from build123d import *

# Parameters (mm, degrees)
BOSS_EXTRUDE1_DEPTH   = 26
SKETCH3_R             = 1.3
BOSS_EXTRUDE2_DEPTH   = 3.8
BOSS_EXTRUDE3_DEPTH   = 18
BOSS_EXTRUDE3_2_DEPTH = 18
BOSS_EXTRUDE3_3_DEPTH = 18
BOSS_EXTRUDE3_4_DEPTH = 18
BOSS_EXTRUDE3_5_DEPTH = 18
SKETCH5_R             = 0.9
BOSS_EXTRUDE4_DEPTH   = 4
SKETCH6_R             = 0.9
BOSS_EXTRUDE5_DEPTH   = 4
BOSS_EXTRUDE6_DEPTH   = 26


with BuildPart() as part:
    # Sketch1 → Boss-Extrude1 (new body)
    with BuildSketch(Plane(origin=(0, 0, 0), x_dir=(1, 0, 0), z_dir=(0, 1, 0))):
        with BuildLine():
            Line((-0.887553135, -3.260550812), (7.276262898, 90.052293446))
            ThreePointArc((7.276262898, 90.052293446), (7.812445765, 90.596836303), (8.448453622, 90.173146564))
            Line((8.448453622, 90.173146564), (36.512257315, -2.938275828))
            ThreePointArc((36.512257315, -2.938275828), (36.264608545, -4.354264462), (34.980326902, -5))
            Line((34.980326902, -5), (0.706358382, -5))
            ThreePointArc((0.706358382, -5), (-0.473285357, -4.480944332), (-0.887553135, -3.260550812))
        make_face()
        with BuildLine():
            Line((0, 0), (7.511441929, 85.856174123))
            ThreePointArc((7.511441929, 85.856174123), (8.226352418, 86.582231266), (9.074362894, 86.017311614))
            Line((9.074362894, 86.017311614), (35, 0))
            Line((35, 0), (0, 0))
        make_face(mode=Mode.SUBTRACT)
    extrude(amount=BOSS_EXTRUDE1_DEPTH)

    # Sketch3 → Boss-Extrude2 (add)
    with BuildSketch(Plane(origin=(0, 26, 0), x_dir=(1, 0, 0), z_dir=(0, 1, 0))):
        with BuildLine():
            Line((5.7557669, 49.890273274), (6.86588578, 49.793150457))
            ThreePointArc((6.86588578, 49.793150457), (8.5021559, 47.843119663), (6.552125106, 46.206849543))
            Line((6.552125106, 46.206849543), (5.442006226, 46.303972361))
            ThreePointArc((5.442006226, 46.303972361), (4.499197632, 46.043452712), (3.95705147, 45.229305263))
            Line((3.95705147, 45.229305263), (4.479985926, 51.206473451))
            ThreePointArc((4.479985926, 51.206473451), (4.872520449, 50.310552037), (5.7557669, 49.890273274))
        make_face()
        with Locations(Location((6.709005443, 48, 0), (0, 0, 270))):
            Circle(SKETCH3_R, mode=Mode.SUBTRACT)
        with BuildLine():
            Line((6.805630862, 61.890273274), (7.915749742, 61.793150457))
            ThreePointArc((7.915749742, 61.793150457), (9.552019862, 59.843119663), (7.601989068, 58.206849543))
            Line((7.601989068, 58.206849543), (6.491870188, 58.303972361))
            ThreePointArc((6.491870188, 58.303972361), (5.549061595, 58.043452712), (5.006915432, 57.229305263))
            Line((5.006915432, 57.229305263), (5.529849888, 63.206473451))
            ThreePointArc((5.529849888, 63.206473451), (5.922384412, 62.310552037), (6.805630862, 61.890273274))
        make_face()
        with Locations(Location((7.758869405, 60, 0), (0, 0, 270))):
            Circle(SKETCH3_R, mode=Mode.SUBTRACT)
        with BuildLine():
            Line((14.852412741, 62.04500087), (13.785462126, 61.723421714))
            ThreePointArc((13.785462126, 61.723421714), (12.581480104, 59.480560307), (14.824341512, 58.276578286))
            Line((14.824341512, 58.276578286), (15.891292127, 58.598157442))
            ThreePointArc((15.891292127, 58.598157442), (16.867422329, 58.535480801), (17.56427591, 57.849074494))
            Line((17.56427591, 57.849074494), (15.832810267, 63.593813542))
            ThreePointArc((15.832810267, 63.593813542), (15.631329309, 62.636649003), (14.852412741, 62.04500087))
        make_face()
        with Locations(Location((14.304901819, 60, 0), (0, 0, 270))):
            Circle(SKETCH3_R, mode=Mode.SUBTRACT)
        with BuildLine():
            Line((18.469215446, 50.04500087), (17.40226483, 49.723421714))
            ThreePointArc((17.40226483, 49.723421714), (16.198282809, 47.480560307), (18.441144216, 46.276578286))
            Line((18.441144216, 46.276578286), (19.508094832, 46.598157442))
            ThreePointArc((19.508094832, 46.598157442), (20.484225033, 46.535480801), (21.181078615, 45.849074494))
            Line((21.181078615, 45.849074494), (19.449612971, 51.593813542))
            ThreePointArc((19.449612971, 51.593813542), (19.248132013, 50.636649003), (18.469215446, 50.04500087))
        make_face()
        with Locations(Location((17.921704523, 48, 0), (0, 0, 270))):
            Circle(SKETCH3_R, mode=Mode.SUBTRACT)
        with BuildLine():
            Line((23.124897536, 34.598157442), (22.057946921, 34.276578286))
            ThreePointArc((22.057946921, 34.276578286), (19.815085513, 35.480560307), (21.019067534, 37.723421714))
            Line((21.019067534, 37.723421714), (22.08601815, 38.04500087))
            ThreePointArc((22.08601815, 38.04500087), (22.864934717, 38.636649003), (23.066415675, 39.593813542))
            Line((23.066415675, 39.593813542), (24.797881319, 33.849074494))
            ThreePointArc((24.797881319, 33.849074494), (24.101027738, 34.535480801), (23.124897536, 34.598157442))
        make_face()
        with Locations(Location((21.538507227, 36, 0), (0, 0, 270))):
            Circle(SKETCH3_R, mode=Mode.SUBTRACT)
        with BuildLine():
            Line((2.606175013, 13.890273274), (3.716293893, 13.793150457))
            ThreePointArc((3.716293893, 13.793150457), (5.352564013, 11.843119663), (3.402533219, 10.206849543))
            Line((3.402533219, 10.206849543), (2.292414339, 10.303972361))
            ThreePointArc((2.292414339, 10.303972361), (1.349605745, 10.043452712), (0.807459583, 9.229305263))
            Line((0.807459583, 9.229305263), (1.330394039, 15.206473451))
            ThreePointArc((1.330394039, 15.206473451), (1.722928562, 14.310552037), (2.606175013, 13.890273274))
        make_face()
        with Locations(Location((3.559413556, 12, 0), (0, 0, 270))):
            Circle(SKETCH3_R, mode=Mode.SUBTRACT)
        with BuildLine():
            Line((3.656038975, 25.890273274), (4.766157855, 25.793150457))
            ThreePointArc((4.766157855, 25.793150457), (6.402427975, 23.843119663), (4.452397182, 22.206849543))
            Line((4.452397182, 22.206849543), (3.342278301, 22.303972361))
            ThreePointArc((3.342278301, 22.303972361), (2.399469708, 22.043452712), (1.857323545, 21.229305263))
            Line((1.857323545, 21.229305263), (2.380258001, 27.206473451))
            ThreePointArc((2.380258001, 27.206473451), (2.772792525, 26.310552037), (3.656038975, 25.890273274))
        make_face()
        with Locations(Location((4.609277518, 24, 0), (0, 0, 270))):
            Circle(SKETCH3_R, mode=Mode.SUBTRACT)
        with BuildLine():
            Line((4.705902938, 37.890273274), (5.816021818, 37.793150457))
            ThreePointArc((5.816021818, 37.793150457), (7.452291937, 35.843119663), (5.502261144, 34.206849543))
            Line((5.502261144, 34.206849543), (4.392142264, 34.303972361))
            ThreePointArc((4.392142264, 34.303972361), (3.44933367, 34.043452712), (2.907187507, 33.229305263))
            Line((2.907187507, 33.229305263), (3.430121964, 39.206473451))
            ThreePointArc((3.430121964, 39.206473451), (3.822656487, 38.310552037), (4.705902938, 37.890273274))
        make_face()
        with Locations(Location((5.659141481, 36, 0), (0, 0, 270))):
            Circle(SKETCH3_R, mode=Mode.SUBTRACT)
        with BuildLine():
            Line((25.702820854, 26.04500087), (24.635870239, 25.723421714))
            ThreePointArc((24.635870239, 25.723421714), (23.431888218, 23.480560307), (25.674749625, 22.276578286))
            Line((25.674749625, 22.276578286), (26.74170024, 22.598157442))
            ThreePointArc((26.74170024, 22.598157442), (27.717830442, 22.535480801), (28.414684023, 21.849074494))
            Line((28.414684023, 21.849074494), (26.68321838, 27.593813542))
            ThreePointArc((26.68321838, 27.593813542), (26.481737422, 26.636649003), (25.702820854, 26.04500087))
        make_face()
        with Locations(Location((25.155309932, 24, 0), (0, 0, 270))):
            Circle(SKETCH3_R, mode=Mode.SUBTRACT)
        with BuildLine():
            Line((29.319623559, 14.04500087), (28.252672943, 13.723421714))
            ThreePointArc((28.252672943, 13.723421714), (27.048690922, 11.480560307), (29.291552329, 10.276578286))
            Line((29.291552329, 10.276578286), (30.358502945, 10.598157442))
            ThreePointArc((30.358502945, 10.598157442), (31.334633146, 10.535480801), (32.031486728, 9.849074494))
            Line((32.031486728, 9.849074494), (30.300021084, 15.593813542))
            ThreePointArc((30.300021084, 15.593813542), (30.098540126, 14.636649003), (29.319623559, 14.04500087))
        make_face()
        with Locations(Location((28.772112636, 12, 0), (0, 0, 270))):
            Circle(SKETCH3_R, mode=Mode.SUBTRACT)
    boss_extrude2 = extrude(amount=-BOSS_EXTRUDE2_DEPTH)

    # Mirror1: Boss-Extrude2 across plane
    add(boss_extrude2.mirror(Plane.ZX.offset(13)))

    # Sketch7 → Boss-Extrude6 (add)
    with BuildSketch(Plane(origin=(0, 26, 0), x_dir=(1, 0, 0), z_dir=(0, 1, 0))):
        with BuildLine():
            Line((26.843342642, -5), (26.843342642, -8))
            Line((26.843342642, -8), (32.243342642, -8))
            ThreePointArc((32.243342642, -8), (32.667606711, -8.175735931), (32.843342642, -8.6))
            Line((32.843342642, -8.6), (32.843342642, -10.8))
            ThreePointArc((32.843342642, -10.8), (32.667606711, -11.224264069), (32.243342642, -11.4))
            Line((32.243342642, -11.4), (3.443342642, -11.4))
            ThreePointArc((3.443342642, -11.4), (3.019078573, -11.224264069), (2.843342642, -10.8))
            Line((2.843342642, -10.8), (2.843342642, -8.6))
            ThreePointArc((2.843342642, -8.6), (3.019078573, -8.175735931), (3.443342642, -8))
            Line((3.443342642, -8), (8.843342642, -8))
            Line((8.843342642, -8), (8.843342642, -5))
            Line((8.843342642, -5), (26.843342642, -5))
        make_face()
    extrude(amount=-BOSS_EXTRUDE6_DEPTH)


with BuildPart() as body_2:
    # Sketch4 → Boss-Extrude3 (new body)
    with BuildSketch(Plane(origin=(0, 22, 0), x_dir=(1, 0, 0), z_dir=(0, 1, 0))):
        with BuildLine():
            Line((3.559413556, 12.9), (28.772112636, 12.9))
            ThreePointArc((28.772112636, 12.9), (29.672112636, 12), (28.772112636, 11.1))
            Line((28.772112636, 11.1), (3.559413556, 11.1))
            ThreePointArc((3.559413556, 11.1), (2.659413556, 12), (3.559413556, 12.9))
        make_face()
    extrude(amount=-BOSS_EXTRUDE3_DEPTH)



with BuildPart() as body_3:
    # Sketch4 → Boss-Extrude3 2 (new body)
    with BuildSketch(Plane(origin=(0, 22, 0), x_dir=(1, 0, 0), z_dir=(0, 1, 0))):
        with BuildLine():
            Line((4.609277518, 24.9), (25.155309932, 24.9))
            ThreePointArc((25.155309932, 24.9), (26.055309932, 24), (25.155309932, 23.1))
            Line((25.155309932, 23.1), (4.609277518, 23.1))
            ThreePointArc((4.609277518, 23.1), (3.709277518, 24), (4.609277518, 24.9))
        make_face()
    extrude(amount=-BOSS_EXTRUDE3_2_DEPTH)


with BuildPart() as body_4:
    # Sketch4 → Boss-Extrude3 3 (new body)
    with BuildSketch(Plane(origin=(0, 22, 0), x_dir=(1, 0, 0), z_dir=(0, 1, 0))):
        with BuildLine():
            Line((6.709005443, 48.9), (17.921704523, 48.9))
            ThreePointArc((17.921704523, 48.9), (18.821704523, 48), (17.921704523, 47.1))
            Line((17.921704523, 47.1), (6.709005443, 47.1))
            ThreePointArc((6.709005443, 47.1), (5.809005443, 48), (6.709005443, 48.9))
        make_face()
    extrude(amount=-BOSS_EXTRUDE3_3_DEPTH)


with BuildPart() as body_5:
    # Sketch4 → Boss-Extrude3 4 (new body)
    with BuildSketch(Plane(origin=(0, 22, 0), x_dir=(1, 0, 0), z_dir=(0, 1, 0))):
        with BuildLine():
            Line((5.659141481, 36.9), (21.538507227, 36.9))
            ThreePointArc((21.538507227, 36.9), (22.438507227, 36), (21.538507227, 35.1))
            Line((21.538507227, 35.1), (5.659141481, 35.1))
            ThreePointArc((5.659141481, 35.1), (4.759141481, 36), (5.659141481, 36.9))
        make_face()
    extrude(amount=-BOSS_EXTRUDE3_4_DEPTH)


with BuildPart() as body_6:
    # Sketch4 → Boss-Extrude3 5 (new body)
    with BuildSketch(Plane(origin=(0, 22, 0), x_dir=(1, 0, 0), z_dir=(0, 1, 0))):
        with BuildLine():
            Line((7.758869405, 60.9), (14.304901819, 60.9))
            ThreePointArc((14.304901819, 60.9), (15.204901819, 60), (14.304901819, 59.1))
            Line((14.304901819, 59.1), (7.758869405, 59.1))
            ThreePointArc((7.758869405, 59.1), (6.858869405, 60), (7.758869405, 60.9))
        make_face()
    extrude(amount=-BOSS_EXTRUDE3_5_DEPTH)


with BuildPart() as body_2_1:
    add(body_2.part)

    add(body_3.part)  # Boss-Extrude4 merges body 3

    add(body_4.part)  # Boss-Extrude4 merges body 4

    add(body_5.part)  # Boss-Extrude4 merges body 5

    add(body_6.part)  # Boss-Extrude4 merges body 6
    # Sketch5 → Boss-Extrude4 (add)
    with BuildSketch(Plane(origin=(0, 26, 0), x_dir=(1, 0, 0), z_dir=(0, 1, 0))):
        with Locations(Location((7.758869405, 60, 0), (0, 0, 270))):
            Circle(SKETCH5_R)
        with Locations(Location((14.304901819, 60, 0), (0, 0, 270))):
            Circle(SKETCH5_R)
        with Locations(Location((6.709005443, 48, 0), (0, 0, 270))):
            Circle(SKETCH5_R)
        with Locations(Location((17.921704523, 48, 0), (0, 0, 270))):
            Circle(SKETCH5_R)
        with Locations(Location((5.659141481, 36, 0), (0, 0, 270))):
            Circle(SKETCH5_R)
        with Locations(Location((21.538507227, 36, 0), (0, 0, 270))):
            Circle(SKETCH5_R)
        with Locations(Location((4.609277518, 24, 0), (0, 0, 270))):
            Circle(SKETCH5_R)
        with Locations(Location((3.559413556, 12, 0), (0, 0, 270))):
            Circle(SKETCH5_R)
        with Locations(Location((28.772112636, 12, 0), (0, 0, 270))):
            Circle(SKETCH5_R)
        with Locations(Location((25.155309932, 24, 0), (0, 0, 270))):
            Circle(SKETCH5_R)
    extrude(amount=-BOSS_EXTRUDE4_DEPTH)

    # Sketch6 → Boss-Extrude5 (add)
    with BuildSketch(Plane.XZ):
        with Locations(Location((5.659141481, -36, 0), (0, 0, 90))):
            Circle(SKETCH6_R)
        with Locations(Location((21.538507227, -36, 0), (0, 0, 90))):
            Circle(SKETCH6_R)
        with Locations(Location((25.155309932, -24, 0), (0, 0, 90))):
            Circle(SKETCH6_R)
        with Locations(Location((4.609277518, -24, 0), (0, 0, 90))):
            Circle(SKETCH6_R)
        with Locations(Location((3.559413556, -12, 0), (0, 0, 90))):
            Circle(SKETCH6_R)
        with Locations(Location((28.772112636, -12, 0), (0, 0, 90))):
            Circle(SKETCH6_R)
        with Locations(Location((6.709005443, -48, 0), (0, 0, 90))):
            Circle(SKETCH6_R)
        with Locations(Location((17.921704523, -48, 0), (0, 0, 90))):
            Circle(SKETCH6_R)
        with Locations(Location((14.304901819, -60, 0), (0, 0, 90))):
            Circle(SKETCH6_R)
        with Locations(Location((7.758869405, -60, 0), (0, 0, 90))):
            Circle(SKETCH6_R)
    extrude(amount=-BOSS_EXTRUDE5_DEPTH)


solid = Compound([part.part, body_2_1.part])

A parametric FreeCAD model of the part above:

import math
import FreeCAD as App
import Part
import Sketcher
from FreeCAD import Vector
Q = App.Units.Quantity

doc = App.newDocument("Part")
body = doc.addObject("PartDesign::Body", "Body")

# Sketch on XZ plane
sketch1 = body.newObject("Sketcher::SketchObject", "Sketch")
sketch1.AttachmentSupport = (doc.getObject("XZ_Plane"), [""])
sketch1.MapMode = "FlatFace"
sketch1.addGeometry([
    Part.LineSegment(Vector(7.3, -90.1, 0), Vector(-0.9, 3.3, 0)),  # 0
    Part.ArcOfCircle(Part.Circle(Vector(0.7, 3.4, 0), Vector(0, 0, 1), 1.6), math.radians(90), math.radians(185)),  # 1
    Part.LineSegment(Vector(0.7, 5, 0), Vector(35, 5, 0)),  # 2
    Part.ArcOfCircle(Part.Circle(Vector(35, 3.4, 0), Vector(0, 0, 1), 1.6), math.radians(-17), math.radians(90)),  # 3
    Part.LineSegment(Vector(36.5, 2.9, 0), Vector(8.4, -90.2, 0)),  # 4
    Part.ArcOfCircle(Part.Circle(Vector(7.9, -90, 0), Vector(0, 0, 1), 0.6), math.radians(-175), math.radians(-17)),  # 5
    Part.LineSegment(Vector(0, 0, 0), Vector(7.5, -85.9, 0)),  # 6
    Part.ArcOfCircle(Part.Circle(Vector(8.3, -85.8, 0), Vector(0, 0, 1), 0.8), math.radians(-175), math.radians(-17)),  # 7
    Part.LineSegment(Vector(9.1, -86, 0), Vector(35, 0, 0)),  # 8
    Part.LineSegment(Vector(35, 0, 0), Vector(0, 0, 0)),  # 9
], False)
sketch1.addConstraint([
    Sketcher.Constraint("Tangent", 0, 2, 1, 2),
    Sketcher.Constraint("Tangent", 1, 1, 2, 1),
    Sketcher.Constraint("Tangent", 2, 2, 3, 2),
    Sketcher.Constraint("Tangent", 3, 1, 4, 1),
    Sketcher.Constraint("Tangent", 4, 2, 5, 2),
    Sketcher.Constraint("Tangent", 5, 1, 0, 1),
    Sketcher.Constraint("Tangent", 6, 2, 7, 1),
    Sketcher.Constraint("Tangent", 7, 2, 8, 1),
    Sketcher.Constraint("Coincident", 8, 2, 9, 1),
    Sketcher.Constraint("Coincident", 9, 2, 6, 1),
    Sketcher.Constraint("Horizontal", 2),
    Sketcher.Constraint("Horizontal", 9),
    Sketcher.Constraint("Coincident", 9, 2, -1, 1),
    Sketcher.Constraint("Equal", 1, 3),
    Sketcher.Constraint("Parallel", 0, 6),
    Sketcher.Constraint("Parallel", 4, 8),
    Sketcher.Constraint("Radius", 1, 1.6),
    Sketcher.Constraint("Radius", 5, 0.6),
    Sketcher.Constraint("Radius", 7, 0.8),
    Sketcher.Constraint("DistanceX", 9, 2, 9, 1, 35.0),
    Sketcher.Constraint("Angle", 0, Q("95 deg")),
    Sketcher.Constraint("DistanceY", 5, 3, -1, 1, 90.0),
    Sketcher.Constraint("DistanceY", -1, 1, 1, 1, 5.0),
    Sketcher.Constraint("DistanceY", 7, 3, 0, 2, 89.047),
    Sketcher.Constraint("DistanceX", 5, 1, 7, 2, 1.7981),
])
pad1 = body.newObject("PartDesign::Pad", "Pad")
pad1.Profile = sketch1
pad1.Length = 26
pad1.Reversed = True

# Sketch on XZ plane
sketch2 = body.newObject("Sketcher::SketchObject", "Sketch001")
sketch2.AttachmentSupport = (doc.getObject("XZ_Plane"), [""])
sketch2.MapMode = "FlatFace"
sketch2.AttachmentOffset = App.Placement(Vector(0, 0, -26), App.Rotation())
sketch2.addGeometry([
    Part.LineSegment(Vector(6.9, -49.8, 0), Vector(5.8, -49.9, 0)),  # 0
    Part.ArcOfCircle(Part.Circle(Vector(5.9, -51.3, 0), Vector(0, 0, 1), 1.4), math.radians(95), math.radians(177)),  # 1
    Part.LineSegment(Vector(4.5, -51.2, 0), Vector(4, -45.2, 0)),  # 2
    Part.ArcOfCircle(Part.Circle(Vector(5.3, -44.9, 0), Vector(0, 0, 1), 1.4), math.radians(-167), math.radians(-85)),  # 3
    Part.LineSegment(Vector(5.4, -46.3, 0), Vector(6.6, -46.2, 0)),  # 4
    Part.ArcOfCircle(Part.Circle(Vector(6.7, -48, 0), Vector(0, 0, 1), 1.8), math.radians(-85), math.radians(95)),  # 5
    Part.Circle(Vector(6.7, -48, 0), Vector(0, 0, 1), 1.3),  # 6
    Part.LineSegment(Vector(7.9, -61.8, 0), Vector(6.8, -61.9, 0)),  # 7
    Part.ArcOfCircle(Part.Circle(Vector(6.9, -63.3, 0), Vector(0, 0, 1), 1.4), math.radians(95), math.radians(177)),  # 8
    Part.LineSegment(Vector(5.5, -63.2, 0), Vector(5, -57.2, 0)),  # 9
    Part.ArcOfCircle(Part.Circle(Vector(6.4, -56.9, 0), Vector(0, 0, 1), 1.4), math.radians(-167), math.radians(-85)),  # 10
    Part.LineSegment(Vector(6.5, -58.3, 0), Vector(7.6, -58.2, 0)),  # 11
    Part.ArcOfCircle(Part.Circle(Vector(7.8, -60, 0), Vector(0, 0, 1), 1.8), math.radians(-85), math.radians(95)),  # 12
    Part.Circle(Vector(7.8, -60, 0), Vector(0, 0, 1), 1.3),  # 13
    Part.LineSegment(Vector(14.9, -62, 0), Vector(13.8, -61.7, 0)),  # 14
    Part.ArcOfCircle(Part.Circle(Vector(14.3, -60, 0), Vector(0, 0, 1), 1.8), math.radians(73), math.radians(253)),  # 15
    Part.LineSegment(Vector(14.8, -58.3, 0), Vector(15.9, -58.6, 0)),  # 16
    Part.ArcOfCircle(Part.Circle(Vector(16.3, -57.3, 0), Vector(0, 0, 1), 1.4), math.radians(-107), math.radians(-25)),  # 17
    Part.LineSegment(Vector(17.6, -57.8, 0), Vector(15.8, -63.6, 0)),  # 18
    Part.ArcOfCircle(Part.Circle(Vector(14.4, -63.4, 0), Vector(0, 0, 1), 1.4), math.radians(-9), math.radians(73)),  # 19
    Part.Circle(Vector(14.3, -60, 0), Vector(0, 0, 1), 1.3),  # 20
    Part.LineSegment(Vector(18.5, -50, 0), Vector(17.4, -49.7, 0)),  # 21
    Part.ArcOfCircle(Part.Circle(Vector(17.9, -48, 0), Vector(0, 0, 1), 1.8), math.radians(73), math.radians(253)),  # 22
    Part.LineSegment(Vector(18.4, -46.3, 0), Vector(19.5, -46.6, 0)),  # 23
    Part.ArcOfCircle(Part.Circle(Vector(19.9, -45.3, 0), Vector(0, 0, 1), 1.4), math.radians(-107), math.radians(-25)),  # 24
    Part.LineSegment(Vector(21.2, -45.8, 0), Vector(19.4, -51.6, 0)),  # 25
    Part.ArcOfCircle(Part.Circle(Vector(18.1, -51.4, 0), Vector(0, 0, 1), 1.4), math.radians(-9), math.radians(73)),  # 26
    Part.Circle(Vector(17.9, -48, 0), Vector(0, 0, 1), 1.3),  # 27
    Part.LineSegment(Vector(22.1, -34.3, 0), Vector(23.1, -34.6, 0)),  # 28
    Part.ArcOfCircle(Part.Circle(Vector(23.5, -33.3, 0), Vector(0, 0, 1), 1.4), math.radians(-107), math.radians(-25)),  # 29
    Part.LineSegment(Vector(24.8, -33.8, 0), Vector(23.1, -39.6, 0)),  # 30
    Part.ArcOfCircle(Part.Circle(Vector(21.7, -39.4, 0), Vector(0, 0, 1), 1.4), math.radians(-9), math.radians(73)),  # 31
    Part.LineSegment(Vector(22.1, -38, 0), Vector(21, -37.7, 0)),  # 32
    Part.ArcOfCircle(Part.Circle(Vector(21.5, -36, 0), Vector(0, 0, 1), 1.8), math.radians(73), math.radians(253)),  # 33
    Part.Circle(Vector(21.5, -36, 0), Vector(0, 0, 1), 1.3),  # 34
    Part.LineSegment(Vector(3.7, -13.8, 0), Vector(2.6, -13.9, 0)),  # 35
    Part.ArcOfCircle(Part.Circle(Vector(2.7, -15.3, 0), Vector(0, 0, 1), 1.4), math.radians(95), math.radians(177)),  # 36
    Part.LineSegment(Vector(1.3, -15.2, 0), Vector(0.8, -9.2, 0)),  # 37
    Part.ArcOfCircle(Part.Circle(Vector(2.2, -8.9, 0), Vector(0, 0, 1), 1.4), math.radians(-167), math.radians(-85)),  # 38
    Part.LineSegment(Vector(2.3, -10.3, 0), Vector(3.4, -10.2, 0)),  # 39
    Part.ArcOfCircle(Part.Circle(Vector(3.6, -12, 0), Vector(0, 0, 1), 1.8), math.radians(-85), math.radians(95)),  # 40
    Part.Circle(Vector(3.6, -12, 0), Vector(0, 0, 1), 1.3),  # 41
    Part.LineSegment(Vector(4.8, -25.8, 0), Vector(3.7, -25.9, 0)),  # 42
    Part.ArcOfCircle(Part.Circle(Vector(3.8, -27.3, 0), Vector(0, 0, 1), 1.4), math.radians(95), math.radians(177)),  # 43
    Part.LineSegment(Vector(2.4, -27.2, 0), Vector(1.9, -21.2, 0)),  # 44
    Part.ArcOfCircle(Part.Circle(Vector(3.2, -20.9, 0), Vector(0, 0, 1), 1.4), math.radians(-167), math.radians(-85)),  # 45
    Part.LineSegment(Vector(3.3, -22.3, 0), Vector(4.5, -22.2, 0)),  # 46
    Part.ArcOfCircle(Part.Circle(Vector(4.6, -24, 0), Vector(0, 0, 1), 1.8), math.radians(-85), math.radians(95)),  # 47
    Part.Circle(Vector(4.6, -24, 0), Vector(0, 0, 1), 1.3),  # 48
    Part.LineSegment(Vector(5.8, -37.8, 0), Vector(4.7, -37.9, 0)),  # 49
    Part.ArcOfCircle(Part.Circle(Vector(4.8, -39.3, 0), Vector(0, 0, 1), 1.4), math.radians(95), math.radians(177)),  # 50
    Part.LineSegment(Vector(3.4, -39.2, 0), Vector(2.9, -33.2, 0)),  # 51
    Part.ArcOfCircle(Part.Circle(Vector(4.3, -32.9, 0), Vector(0, 0, 1), 1.4), math.radians(-167), math.radians(-85)),  # 52
    Part.LineSegment(Vector(4.4, -34.3, 0), Vector(5.5, -34.2, 0)),  # 53
    Part.ArcOfCircle(Part.Circle(Vector(5.7, -36, 0), Vector(0, 0, 1), 1.8), math.radians(-85), math.radians(95)),  # 54
    Part.Circle(Vector(5.7, -36, 0), Vector(0, 0, 1), 1.3),  # 55
    Part.LineSegment(Vector(25.7, -26, 0), Vector(24.6, -25.7, 0)),  # 56
    Part.ArcOfCircle(Part.Circle(Vector(25.2, -24, 0), Vector(0, 0, 1), 1.8), math.radians(73), math.radians(253)),  # 57
    Part.LineSegment(Vector(25.7, -22.3, 0), Vector(26.7, -22.6, 0)),  # 58
    Part.ArcOfCircle(Part.Circle(Vector(27.1, -21.3, 0), Vector(0, 0, 1), 1.4), math.radians(-107), math.radians(-25)),  # 59
    Part.LineSegment(Vector(28.4, -21.8, 0), Vector(26.7, -27.6, 0)),  # 60
    Part.ArcOfCircle(Part.Circle(Vector(25.3, -27.4, 0), Vector(0, 0, 1), 1.4), math.radians(-9), math.radians(73)),  # 61
    Part.Circle(Vector(25.2, -24, 0), Vector(0, 0, 1), 1.3),  # 62
    Part.LineSegment(Vector(29.3, -14, 0), Vector(28.3, -13.7, 0)),  # 63
    Part.ArcOfCircle(Part.Circle(Vector(28.8, -12, 0), Vector(0, 0, 1), 1.8), math.radians(73), math.radians(253)),  # 64
    Part.LineSegment(Vector(29.3, -10.3, 0), Vector(30.4, -10.6, 0)),  # 65
    Part.ArcOfCircle(Part.Circle(Vector(30.8, -9.3, 0), Vector(0, 0, 1), 1.4), math.radians(-107), math.radians(-25)),  # 66
    Part.LineSegment(Vector(32, -9.8, 0), Vector(30.3, -15.6, 0)),  # 67
    Part.ArcOfCircle(Part.Circle(Vector(28.9, -15.4, 0), Vector(0, 0, 1), 1.4), math.radians(-9), math.radians(73)),  # 68
    Part.Circle(Vector(28.8, -12, 0), Vector(0, 0, 1), 1.3),  # 69
], False)
sketch2.addConstraint([
    Sketcher.Constraint("Tangent", 0, 2, 1, 1),
    Sketcher.Constraint("Coincident", 1, 2, 2, 1),
    Sketcher.Constraint("Coincident", 2, 2, 3, 1),
    Sketcher.Constraint("Tangent", 3, 2, 4, 1),
    Sketcher.Constraint("Tangent", 4, 2, 5, 2),
    Sketcher.Constraint("Tangent", 5, 1, 0, 1),
    Sketcher.Constraint("Tangent", 7, 2, 8, 1),
    Sketcher.Constraint("Coincident", 8, 2, 9, 1),
    Sketcher.Constraint("Coincident", 9, 2, 10, 1),
    Sketcher.Constraint("Tangent", 10, 2, 11, 1),
    Sketcher.Constraint("Tangent", 11, 2, 12, 2),
    Sketcher.Constraint("Tangent", 12, 1, 7, 1),
    Sketcher.Constraint("Tangent", 14, 2, 15, 2),
    Sketcher.Constraint("Tangent", 15, 1, 16, 1),
    Sketcher.Constraint("Tangent", 16, 2, 17, 1),
    Sketcher.Constraint("Coincident", 17, 2, 18, 1),
    Sketcher.Constraint("Coincident", 18, 2, 19, 1),
    Sketcher.Constraint("Tangent", 19, 2, 14, 1),
    Sketcher.Constraint("Tangent", 21, 2, 22, 2),
    Sketcher.Constraint("Tangent", 22, 1, 23, 1),
    Sketcher.Constraint("Tangent", 23, 2, 24, 1),
    Sketcher.Constraint("Coincident", 24, 2, 25, 1),
    Sketcher.Constraint("Coincident", 25, 2, 26, 1),
    Sketcher.Constraint("Tangent", 26, 2, 21, 1),
    Sketcher.Constraint("Tangent", 28, 2, 29, 1),
    Sketcher.Constraint("Coincident", 29, 2, 30, 1),
    Sketcher.Constraint("Coincident", 30, 2, 31, 1),
    Sketcher.Constraint("Tangent", 31, 2, 32, 1),
    Sketcher.Constraint("Tangent", 32, 2, 33, 2),
    Sketcher.Constraint("Tangent", 33, 1, 28, 1),
    Sketcher.Constraint("Tangent", 35, 2, 36, 1),
    Sketcher.Constraint("Coincident", 36, 2, 37, 1),
    Sketcher.Constraint("Coincident", 37, 2, 38, 1),
    Sketcher.Constraint("Tangent", 38, 2, 39, 1),
    Sketcher.Constraint("Tangent", 39, 2, 40, 2),
    Sketcher.Constraint("Tangent", 40, 1, 35, 1),
    Sketcher.Constraint("Tangent", 42, 2, 43, 1),
    Sketcher.Constraint("Coincident", 43, 2, 44, 1),
    Sketcher.Constraint("Coincident", 44, 2, 45, 1),
    Sketcher.Constraint("Tangent", 45, 2, 46, 1),
    Sketcher.Constraint("Tangent", 46, 2, 47, 2),
    Sketcher.Constraint("Tangent", 47, 1, 42, 1),
    Sketcher.Constraint("Tangent", 49, 2, 50, 1),
    Sketcher.Constraint("Coincident", 50, 2, 51, 1),
    Sketcher.Constraint("Coincident", 51, 2, 52, 1),
    Sketcher.Constraint("Tangent", 52, 2, 53, 1),
    Sketcher.Constraint("Tangent", 53, 2, 54, 2),
    Sketcher.Constraint("Tangent", 54, 1, 49, 1),
    Sketcher.Constraint("Tangent", 56, 2, 57, 2),
    Sketcher.Constraint("Tangent", 57, 1, 58, 1),
    Sketcher.Constraint("Tangent", 58, 2, 59, 1),
    Sketcher.Constraint("Coincident", 59, 2, 60, 1),
    Sketcher.Constraint("Coincident", 60, 2, 61, 1),
    Sketcher.Constraint("Tangent", 61, 2, 56, 1),
    Sketcher.Constraint("Tangent", 63, 2, 64, 2),
    Sketcher.Constraint("Tangent", 64, 1, 65, 1),
    Sketcher.Constraint("Tangent", 65, 2, 66, 1),
    Sketcher.Constraint("Coincident", 66, 2, 67, 1),
    Sketcher.Constraint("Coincident", 67, 2, 68, 1),
    Sketcher.Constraint("Tangent", 68, 2, 63, 1),
    Sketcher.Constraint("Coincident", 6, 3, 5, 3),
    Sketcher.Constraint("Coincident", 13, 3, 12, 3),
    Sketcher.Constraint("Coincident", 20, 3, 15, 3),
    Sketcher.Constraint("Coincident", 27, 3, 22, 3),
    Sketcher.Constraint("Coincident", 34, 3, 33, 3),
    Sketcher.Constraint("Coincident", 41, 3, 40, 3),
    Sketcher.Constraint("Coincident", 48, 3, 47, 3),
    Sketcher.Constraint("Coincident", 55, 3, 54, 3),
    Sketcher.Constraint("Coincident", 62, 3, 57, 3),
    Sketcher.Constraint("Coincident", 69, 3, 64, 3),
    Sketcher.Constraint("Equal", 1, 3),
    Sketcher.Constraint("Equal", 3, 8),
    Sketcher.Constraint("Equal", 8, 10),
    Sketcher.Constraint("Equal", 5, 12),
    Sketcher.Constraint("Equal", 6, 13),
    Sketcher.Constraint("Equal", 12, 15),
    Sketcher.Constraint("Equal", 10, 17),
    Sketcher.Constraint("Equal", 17, 19),
    Sketcher.Constraint("Equal", 13, 20),
    Sketcher.Constraint("Equal", 15, 22),
    Sketcher.Constraint("Equal", 19, 24),
    Sketcher.Constraint("Equal", 24, 26),
    Sketcher.Constraint("Equal", 20, 27),
    Sketcher.Constraint("Equal", 26, 29),
    Sketcher.Constraint("Equal", 29, 31),
    Sketcher.Constraint("Equal", 22, 33),
    Sketcher.Constraint("Equal", 27, 34),
    Sketcher.Constraint("Equal", 31, 36),
    Sketcher.Constraint("Equal", 36, 38),
    Sketcher.Constraint("Equal", 33, 40),
    Sketcher.Constraint("Equal", 34, 41),
    Sketcher.Constraint("Equal", 38, 43),
    Sketcher.Constraint("Equal", 43, 45),
    Sketcher.Constraint("Equal", 40, 47),
    Sketcher.Constraint("Equal", 41, 48),
    Sketcher.Constraint("Equal", 45, 50),
    Sketcher.Constraint("Equal", 50, 52),
    Sketcher.Constraint("Equal", 47, 54),
    Sketcher.Constraint("Equal", 48, 55),
    Sketcher.Constraint("Equal", 54, 57),
    Sketcher.Constraint("Equal", 52, 59),
    Sketcher.Constraint("Equal", 59, 61),
    Sketcher.Constraint("Equal", 55, 62),
    Sketcher.Constraint("Equal", 57, 64),
    Sketcher.Constraint("Equal", 61, 66),
    Sketcher.Constraint("Equal", 66, 68),
    Sketcher.Constraint("Equal", 62, 69),
    Sketcher.Constraint("Perpendicular", 0, 2),
    Sketcher.Constraint("Perpendicular", 2, 4),
    Sketcher.Constraint("Parallel", 4, 7),
    Sketcher.Constraint("Perpendicular", 7, 9),
    Sketcher.Constraint("Perpendicular", 9, 11),
    Sketcher.Constraint("Parallel", 14, 16),
    Sketcher.Constraint("Perpendicular", 16, 18),
    Sketcher.Constraint("Perpendicular", 18, 21),
    Sketcher.Constraint("Parallel", 21, 23),
    Sketcher.Constraint("Perpendicular", 23, 25),
    Sketcher.Constraint("Perpendicular", 25, 28),
    Sketcher.Constraint("Perpendicular", 28, 30),
    Sketcher.Constraint("Perpendicular", 30, 32),
    Sketcher.Constraint("Parallel", 11, 35),
    Sketcher.Constraint("Perpendicular", 35, 37),
    Sketcher.Constraint("Perpendicular", 37, 39),
    Sketcher.Constraint("Parallel", 39, 42),
    Sketcher.Constraint("Perpendicular", 42, 44),
    Sketcher.Constraint("Perpendicular", 44, 46),
    Sketcher.Constraint("Parallel", 46, 49),
    Sketcher.Constraint("Perpendicular", 49, 51),
    Sketcher.Constraint("Perpendicular", 51, 53),
    Sketcher.Constraint("Parallel", 32, 56),
    Sketcher.Constraint("Parallel", 56, 58),
    Sketcher.Constraint("Perpendicular", 58, 60),
    Sketcher.Constraint("Perpendicular", 60, 63),
    Sketcher.Constraint("Parallel", 63, 65),
    Sketcher.Constraint("Perpendicular", 65, 67),
    Sketcher.Constraint("Horizontal", 13, 3, 15, 3),
    Sketcher.Constraint("Horizontal", 6, 3, 22, 3),
    Sketcher.Constraint("Horizontal", 34, 3, 54, 3),
    Sketcher.Constraint("Horizontal", 48, 3, 57, 3),
    Sketcher.Constraint("Horizontal", 41, 3, 64, 3),
    Sketcher.Constraint("Equal", 0, 4),
    Sketcher.Constraint("Equal", 4, 7),
    Sketcher.Constraint("Equal", 2, 9),
    Sketcher.Constraint("Equal", 7, 11),
    Sketcher.Constraint("Equal", 11, 14),
    Sketcher.Constraint("Equal", 14, 16),
    Sketcher.Constraint("Equal", 9, 18),
    Sketcher.Constraint("Equal", 16, 21),
    Sketcher.Constraint("Equal", 21, 23),
    Sketcher.Constraint("Equal", 18, 25),
    Sketcher.Constraint("Equal", 23, 28),
    Sketcher.Constraint("Equal", 25, 30),
    Sketcher.Constraint("Equal", 28, 32),
    Sketcher.Constraint("Equal", 32, 35),
    Sketcher.Constraint("Equal", 30, 37),
    Sketcher.Constraint("Equal", 35, 39),
    Sketcher.Constraint("Equal", 39, 42),
    Sketcher.Constraint("Equal", 37, 44),
    Sketcher.Constraint("Equal", 42, 46),
    Sketcher.Constraint("Equal", 46, 49),
    Sketcher.Constraint("Equal", 44, 51),
    Sketcher.Constraint("Equal", 49, 53),
    Sketcher.Constraint("Equal", 53, 56),
    Sketcher.Constraint("Equal", 56, 58),
    Sketcher.Constraint("Equal", 51, 60),
    Sketcher.Constraint("Equal", 58, 63),
    Sketcher.Constraint("Equal", 63, 65),
    Sketcher.Constraint("Equal", 60, 67),
    Sketcher.Constraint("Diameter", 6, 2.6),
    Sketcher.Constraint("Radius", 1, 1.4),
    Sketcher.Constraint("Radius", 5, 1.8),
    Sketcher.Constraint("Angle", 0, Q("-175 deg")),
    Sketcher.Constraint("Distance", 2, 6.0),
    Sketcher.Constraint("DistanceY", 5, 3, -1, 1, 48.0),
    Sketcher.Constraint("DistanceY", 12, 3, -1, 1, 60.0),
    Sketcher.Constraint("DistanceY", 33, 3, -1, 1, 36.0),
    Sketcher.Constraint("DistanceY", 40, 3, -1, 1, 12.0),
    Sketcher.Constraint("DistanceY", 47, 3, -1, 1, 24.0),
    Sketcher.Constraint("DistanceY", 19, 2, -1, 1, 62.045001),
    Sketcher.Constraint("DistanceY", 3, 3, -1, 1, 44.9093),
    Sketcher.Constraint("DistanceX", -1, 1, 15, 3, 14.304902),
    Sketcher.Constraint("DistanceX", -1, 1, 58, 2, 26.7417),
    Sketcher.Constraint("DistanceX", -1, 1, 3, 3, 5.319988),
    Sketcher.Constraint("DistanceX", -1, 1, 8, 3, 6.927649),
    Sketcher.Constraint("DistanceX", -1, 1, 31, 3, 21.682009),
    Sketcher.Constraint("DistanceX", -1, 1, 45, 3, 3.22026),
    Sketcher.Constraint("DistanceX", -1, 1, 50, 3, 4.827921),
    Sketcher.Constraint("DistanceX", -1, 1, 66, 3, 30.762512),
    Sketcher.Constraint("DistanceX", -1, 1, 24, 2, 21.181079),
    Sketcher.Constraint("DistanceX", -1, 1, 37, 2, 0.80746),
])
pad2 = body.newObject("PartDesign::Pad", "Pad001")
pad2.Profile = sketch2
pad2.Length = 3.8
doc.recompute()

datumplane = body.newObject("PartDesign::Plane", "DatumPlane")
datumplane.AttachmentSupport = (doc.getObject("XZ_Plane"), [""])
datumplane.MapMode = "FlatFace"
datumplane.AttachmentOffset = App.Placement(Vector(0, 0, -13), App.Rotation())
mirrored = body.newObject("PartDesign::Mirrored", "Mirrored")
mirrored.Originals = [pad2]
mirrored.MirrorPlane = (datumplane, [""])
body.Tip = mirrored

# Sketch on XZ plane
sketch3 = body.newObject("Sketcher::SketchObject", "Sketch002")
sketch3.AttachmentSupport = (doc.getObject("XZ_Plane"), [""])
sketch3.MapMode = "FlatFace"
sketch3.AttachmentOffset = App.Placement(Vector(0, 0, -26), App.Rotation())
sketch3.addGeometry([
    Part.LineSegment(Vector(26.8, 8, 0), Vector(26.8, 5, 0)),  # 0
    Part.LineSegment(Vector(26.8, 5, 0), Vector(8.8, 5, 0)),  # 1
    Part.LineSegment(Vector(8.8, 5, 0), Vector(8.8, 8, 0)),  # 2
    Part.LineSegment(Vector(8.8, 8, 0), Vector(3.4, 8, 0)),  # 3
    Part.ArcOfCircle(Part.Circle(Vector(3.4, 8.6, 0), Vector(0, 0, 1), 0.6), math.radians(180), math.radians(270)),  # 4
    Part.LineSegment(Vector(2.8, 8.6, 0), Vector(2.8, 10.8, 0)),  # 5
    Part.ArcOfCircle(Part.Circle(Vector(3.4, 10.8, 0), Vector(0, 0, 1), 0.6), math.radians(90), math.radians(180)),  # 6
    Part.LineSegment(Vector(3.4, 11.4, 0), Vector(32.2, 11.4, 0)),  # 7
    Part.ArcOfCircle(Part.Circle(Vector(32.2, 10.8, 0), Vector(0, 0, 1), 0.6), math.radians(0), math.radians(90)),  # 8
    Part.LineSegment(Vector(32.8, 10.8, 0), Vector(32.8, 8.6, 0)),  # 9
    Part.ArcOfCircle(Part.Circle(Vector(32.2, 8.6, 0), Vector(0, 0, 1), 0.6), math.radians(-90), math.radians(0)),  # 10
    Part.LineSegment(Vector(32.2, 8, 0), Vector(26.8, 8, 0)),  # 11
], False)
sketch3.addConstraint([
    Sketcher.Constraint("Coincident", 0, 2, 1, 1),
    Sketcher.Constraint("Coincident", 1, 2, 2, 1),
    Sketcher.Constraint("Coincident", 2, 2, 3, 1),
    Sketcher.Constraint("Tangent", 3, 2, 4, 2),
    Sketcher.Constraint("Tangent", 4, 1, 5, 1),
    Sketcher.Constraint("Tangent", 5, 2, 6, 2),
    Sketcher.Constraint("Tangent", 6, 1, 7, 1),
    Sketcher.Constraint("Tangent", 7, 2, 8, 2),
    Sketcher.Constraint("Tangent", 8, 1, 9, 1),
    Sketcher.Constraint("Tangent", 9, 2, 10, 2),
    Sketcher.Constraint("Tangent", 10, 1, 11, 1),
    Sketcher.Constraint("Coincident", 11, 2, 0, 1),
    Sketcher.Constraint("Vertical", 0),
    Sketcher.Constraint("Horizontal", 1),
    Sketcher.Constraint("Vertical", 2),
    Sketcher.Constraint("Horizontal", 3),
    Sketcher.Constraint("Vertical", 5),
    Sketcher.Constraint("Horizontal", 7),
    Sketcher.Constraint("Vertical", 9),
    Sketcher.Constraint("Horizontal", 11),
    Sketcher.Constraint("Equal", 4, 6),
    Sketcher.Constraint("Equal", 6, 8),
    Sketcher.Constraint("Equal", 8, 10),
    Sketcher.Constraint("Horizontal", 4, 3, 10, 3),
    Sketcher.Constraint("Equal", 3, 11),
    Sketcher.Constraint("Radius", 4, 0.6),
    Sketcher.Constraint("DistanceX", 1, 2, 1, 1, 18.0),
    Sketcher.Constraint("DistanceY", 0, 2, 0, 1, 3.0),
    Sketcher.Constraint("DistanceX", 3, 2, 3, 1, 5.4),
    Sketcher.Constraint("DistanceY", 5, 1, 5, 2, 2.2),
    Sketcher.Constraint("DistanceY", -1, 1, 0, 2, 5.0),
    Sketcher.Constraint("DistanceX", -1, 1, 4, 3, 3.443343),
])
pad3 = body.newObject("PartDesign::Pad", "Pad002")
pad3.Profile = sketch3
pad3.Length = 26
body2 = doc.addObject("PartDesign::Body", "Body001")

# Sketch on XZ plane
sketch4 = body2.newObject("Sketcher::SketchObject", "Sketch003")
sketch4.AttachmentSupport = (doc.getObject("XZ_Plane001"), [""])
sketch4.MapMode = "FlatFace"
sketch4.AttachmentOffset = App.Placement(Vector(0, 0, -22), App.Rotation())
sketch4.addGeometry([
    Part.LineSegment(Vector(28.8, -12.9, 0), Vector(3.6, -12.9, 0)),
    Part.ArcOfCircle(Part.Circle(Vector(3.6, -12, 0), Vector(0, 0, 1), 0.9), math.radians(90), math.radians(270)),
    Part.LineSegment(Vector(3.6, -11.1, 0), Vector(28.8, -11.1, 0)),
    Part.ArcOfCircle(Part.Circle(Vector(28.8, -12, 0), Vector(0, 0, 1), 0.9), math.radians(-90), math.radians(90)),
], False)
sketch4.addConstraint([
    Sketcher.Constraint("Tangent", 0, 2, 1, 2),
    Sketcher.Constraint("Tangent", 1, 1, 2, 1),
    Sketcher.Constraint("Tangent", 2, 2, 3, 2),
    Sketcher.Constraint("Tangent", 3, 1, 0, 1),
    Sketcher.Constraint("Horizontal", 0),
    Sketcher.Constraint("Horizontal", 2),
    Sketcher.Constraint("Radius", 1, 0.9),
    Sketcher.Constraint("DistanceY", 1, 3, -1, 1, 12.0),
    Sketcher.Constraint("DistanceX", 0, 2, 0, 1, 25.212699),
    Sketcher.Constraint("DistanceX", -1, 1, 1, 3, 3.559414),
])
pad4 = body2.newObject("PartDesign::Pad", "Pad003")
pad4.Profile = sketch4
pad4.Length = 18
body3 = doc.addObject("PartDesign::Body", "Body002")

# Sketch on XZ plane
sketch5 = body3.newObject("Sketcher::SketchObject", "Sketch004")
sketch5.AttachmentSupport = (doc.getObject("XZ_Plane002"), [""])
sketch5.MapMode = "FlatFace"
sketch5.AttachmentOffset = App.Placement(Vector(0, 0, -22), App.Rotation())
sketch5.addGeometry([
    Part.LineSegment(Vector(25.2, -24.9, 0), Vector(4.6, -24.9, 0)),
    Part.ArcOfCircle(Part.Circle(Vector(4.6, -24, 0), Vector(0, 0, 1), 0.9), math.radians(90), math.radians(270)),
    Part.LineSegment(Vector(4.6, -23.1, 0), Vector(25.2, -23.1, 0)),
    Part.ArcOfCircle(Part.Circle(Vector(25.2, -24, 0), Vector(0, 0, 1), 0.9), math.radians(-90), math.radians(90)),
], False)
sketch5.addConstraint([
    Sketcher.Constraint("Tangent", 0, 2, 1, 2),
    Sketcher.Constraint("Tangent", 1, 1, 2, 1),
    Sketcher.Constraint("Tangent", 2, 2, 3, 2),
    Sketcher.Constraint("Tangent", 3, 1, 0, 1),
    Sketcher.Constraint("Horizontal", 0),
    Sketcher.Constraint("Horizontal", 2),
    Sketcher.Constraint("Radius", 1, 0.9),
    Sketcher.Constraint("DistanceY", 1, 3, -1, 1, 24.0),
    Sketcher.Constraint("DistanceX", 0, 2, 0, 1, 20.546032),
    Sketcher.Constraint("DistanceX", -1, 1, 3, 3, 25.15531),
])
pad5 = body3.newObject("PartDesign::Pad", "Pad004")
pad5.Profile = sketch5
pad5.Length = 18
body4 = doc.addObject("PartDesign::Body", "Body003")

# Sketch on XZ plane
sketch6 = body4.newObject("Sketcher::SketchObject", "Sketch005")
sketch6.AttachmentSupport = (doc.getObject("XZ_Plane003"), [""])
sketch6.MapMode = "FlatFace"
sketch6.AttachmentOffset = App.Placement(Vector(0, 0, -22), App.Rotation())
sketch6.addGeometry([
    Part.LineSegment(Vector(17.9, -48.9, 0), Vector(6.7, -48.9, 0)),
    Part.ArcOfCircle(Part.Circle(Vector(6.7, -48, 0), Vector(0, 0, 1), 0.9), math.radians(90), math.radians(270)),
    Part.LineSegment(Vector(6.7, -47.1, 0), Vector(17.9, -47.1, 0)),
    Part.ArcOfCircle(Part.Circle(Vector(17.9, -48, 0), Vector(0, 0, 1), 0.9), math.radians(-90), math.radians(90)),
], False)
sketch6.addConstraint([
    Sketcher.Constraint("Tangent", 0, 2, 1, 2),
    Sketcher.Constraint("Tangent", 1, 1, 2, 1),
    Sketcher.Constraint("Tangent", 2, 2, 3, 2),
    Sketcher.Constraint("Tangent", 3, 1, 0, 1),
    Sketcher.Constraint("Horizontal", 0),
    Sketcher.Constraint("Horizontal", 2),
    Sketcher.Constraint("Radius", 1, 0.9),
    Sketcher.Constraint("DistanceY", 1, 3, -1, 1, 48.0),
    Sketcher.Constraint("DistanceX", 0, 2, 0, 1, 11.212699),
    Sketcher.Constraint("DistanceX", -1, 1, 1, 3, 6.709005),
])
pad6 = body4.newObject("PartDesign::Pad", "Pad005")
pad6.Profile = sketch6
pad6.Length = 18
body5 = doc.addObject("PartDesign::Body", "Body004")

# Sketch on XZ plane
sketch7 = body5.newObject("Sketcher::SketchObject", "Sketch006")
sketch7.AttachmentSupport = (doc.getObject("XZ_Plane004"), [""])
sketch7.MapMode = "FlatFace"
sketch7.AttachmentOffset = App.Placement(Vector(0, 0, -22), App.Rotation())
sketch7.addGeometry([
    Part.LineSegment(Vector(21.5, -36.9, 0), Vector(5.7, -36.9, 0)),
    Part.ArcOfCircle(Part.Circle(Vector(5.7, -36, 0), Vector(0, 0, 1), 0.9), math.radians(90), math.radians(270)),
    Part.LineSegment(Vector(5.7, -35.1, 0), Vector(21.5, -35.1, 0)),
    Part.ArcOfCircle(Part.Circle(Vector(21.5, -36, 0), Vector(0, 0, 1), 0.9), math.radians(-90), math.radians(90)),
], False)
sketch7.addConstraint([
    Sketcher.Constraint("Tangent", 0, 2, 1, 2),
    Sketcher.Constraint("Tangent", 1, 1, 2, 1),
    Sketcher.Constraint("Tangent", 2, 2, 3, 2),
    Sketcher.Constraint("Tangent", 3, 1, 0, 1),
    Sketcher.Constraint("Horizontal", 0),
    Sketcher.Constraint("Horizontal", 2),
    Sketcher.Constraint("Radius", 1, 0.9),
    Sketcher.Constraint("DistanceY", 1, 3, -1, 1, 36.0),
    Sketcher.Constraint("DistanceX", 0, 2, 0, 1, 15.879366),
    Sketcher.Constraint("DistanceX", -1, 1, 1, 3, 5.659141),
])
pad7 = body5.newObject("PartDesign::Pad", "Pad006")
pad7.Profile = sketch7
pad7.Length = 18
body6 = doc.addObject("PartDesign::Body", "Body005")

# Sketch on XZ plane
sketch8 = body6.newObject("Sketcher::SketchObject", "Sketch007")
sketch8.AttachmentSupport = (doc.getObject("XZ_Plane005"), [""])
sketch8.MapMode = "FlatFace"
sketch8.AttachmentOffset = App.Placement(Vector(0, 0, -22), App.Rotation())
sketch8.addGeometry([
    Part.LineSegment(Vector(14.3, -60.9, 0), Vector(7.8, -60.9, 0)),
    Part.ArcOfCircle(Part.Circle(Vector(7.8, -60, 0), Vector(0, 0, 1), 0.9), math.radians(90), math.radians(270)),
    Part.LineSegment(Vector(7.8, -59.1, 0), Vector(14.3, -59.1, 0)),
    Part.ArcOfCircle(Part.Circle(Vector(14.3, -60, 0), Vector(0, 0, 1), 0.9), math.radians(-90), math.radians(90)),
], False)
sketch8.addConstraint([
    Sketcher.Constraint("Tangent", 0, 2, 1, 2),
    Sketcher.Constraint("Tangent", 1, 1, 2, 1),
    Sketcher.Constraint("Tangent", 2, 2, 3, 2),
    Sketcher.Constraint("Tangent", 3, 1, 0, 1),
    Sketcher.Constraint("Horizontal", 0),
    Sketcher.Constraint("Horizontal", 2),
    Sketcher.Constraint("Radius", 1, 0.9),
    Sketcher.Constraint("DistanceY", 1, 3, -1, 1, 60.0),
    Sketcher.Constraint("DistanceX", -1, 1, 3, 3, 14.304902),
    Sketcher.Constraint("DistanceX", 0, 2, 0, 1, 6.546032),
])
pad8 = body6.newObject("PartDesign::Pad", "Pad007")
pad8.Profile = sketch8
pad8.Length = 18
body2.AllowCompound = True
doc.recompute()

boolean = body2.newObject("PartDesign::Boolean", "Boolean")
boolean.Type = "Fuse"
boolean.addObjects([body3])
doc.recompute()

boolean2 = body2.newObject("PartDesign::Boolean", "Boolean001")
boolean2.Type = "Fuse"
boolean2.addObjects([body4])
doc.recompute()

boolean3 = body2.newObject("PartDesign::Boolean", "Boolean002")
boolean3.Type = "Fuse"
boolean3.addObjects([body5])
doc.recompute()

boolean4 = body2.newObject("PartDesign::Boolean", "Boolean003")
boolean4.Type = "Fuse"
boolean4.addObjects([body6])

# Sketch on XZ plane
sketch9 = body2.newObject("Sketcher::SketchObject", "Sketch008")
sketch9.AttachmentSupport = (doc.getObject("XZ_Plane001"), [""])
sketch9.MapMode = "FlatFace"
sketch9.AttachmentOffset = App.Placement(Vector(0, 0, -26), App.Rotation())
sketch9.addGeometry([
    Part.Circle(Vector(7.8, -60, 0), Vector(0, 0, 1), 0.9),  # 0
    Part.Circle(Vector(14.3, -60, 0), Vector(0, 0, 1), 0.9),  # 1
    Part.Circle(Vector(6.7, -48, 0), Vector(0, 0, 1), 0.9),  # 2
    Part.Circle(Vector(17.9, -48, 0), Vector(0, 0, 1), 0.9),  # 3
    Part.Circle(Vector(5.7, -36, 0), Vector(0, 0, 1), 0.9),  # 4
    Part.Circle(Vector(21.5, -36, 0), Vector(0, 0, 1), 0.9),  # 5
    Part.Circle(Vector(4.6, -24, 0), Vector(0, 0, 1), 0.9),  # 6
    Part.Circle(Vector(3.6, -12, 0), Vector(0, 0, 1), 0.9),  # 7
    Part.Circle(Vector(28.8, -12, 0), Vector(0, 0, 1), 0.9),  # 8
    Part.Circle(Vector(25.2, -24, 0), Vector(0, 0, 1), 0.9),  # 9
], False)
sketch9.addConstraint([
    Sketcher.Constraint("Equal", 0, 1),
    Sketcher.Constraint("Equal", 1, 2),
    Sketcher.Constraint("Equal", 2, 3),
    Sketcher.Constraint("Equal", 3, 4),
    Sketcher.Constraint("Equal", 4, 5),
    Sketcher.Constraint("Equal", 5, 6),
    Sketcher.Constraint("Equal", 6, 7),
    Sketcher.Constraint("Equal", 7, 8),
    Sketcher.Constraint("Equal", 8, 9),
    Sketcher.Constraint("Horizontal", 0, 3, 1, 3),
    Sketcher.Constraint("Horizontal", 2, 3, 3, 3),
    Sketcher.Constraint("Horizontal", 4, 3, 5, 3),
    Sketcher.Constraint("Horizontal", 7, 3, 8, 3),
    Sketcher.Constraint("Horizontal", 6, 3, 9, 3),
    Sketcher.Constraint("Diameter", 0, 1.8),
    Sketcher.Constraint("DistanceY", 0, 3, -1, 1, 60.0),
    Sketcher.Constraint("DistanceY", 2, 3, -1, 1, 48.0),
    Sketcher.Constraint("DistanceY", 4, 3, -1, 1, 36.0),
    Sketcher.Constraint("DistanceY", 6, 3, -1, 1, 24.0),
    Sketcher.Constraint("DistanceY", 7, 3, -1, 1, 12.0),
    Sketcher.Constraint("DistanceX", -1, 1, 1, 3, 14.304902),
    Sketcher.Constraint("DistanceX", 2, 3, 3, 3, 11.212699),
    Sketcher.Constraint("DistanceX", 2, 3, 5, 3, 14.829502),
    Sketcher.Constraint("DistanceX", 7, 3, 8, 3, 25.212699),
    Sketcher.Constraint("DistanceX", -1, 1, 0, 3, 7.758869),
    Sketcher.Constraint("DistanceX", -1, 1, 4, 3, 5.659141),
    Sketcher.Constraint("DistanceX", -1, 1, 9, 3, 25.15531),
    Sketcher.Constraint("DistanceX", 6, 3, 5, 3, 16.92923),
    Sketcher.Constraint("DistanceX", 6, 3, 0, 3, 3.149592),
    Sketcher.Constraint("DistanceX", 7, 3, 2, 3, 3.149592),
])
pad9 = body2.newObject("PartDesign::Pad", "Pad008")
pad9.Profile = sketch9
pad9.Length = 4

# Sketch on XZ plane
sketch10 = body2.newObject("Sketcher::SketchObject", "Sketch009")
sketch10.AttachmentSupport = (doc.getObject("XZ_Plane001"), [""])
sketch10.MapMode = "FlatFace"
sketch10.addGeometry([
    Part.Circle(Vector(5.7, -36, 0), Vector(0, 0, 1), 0.9),  # 0
    Part.Circle(Vector(21.5, -36, 0), Vector(0, 0, 1), 0.9),  # 1
    Part.Circle(Vector(25.2, -24, 0), Vector(0, 0, 1), 0.9),  # 2
    Part.Circle(Vector(4.6, -24, 0), Vector(0, 0, 1), 0.9),  # 3
    Part.Circle(Vector(3.6, -12, 0), Vector(0, 0, 1), 0.9),  # 4
    Part.Circle(Vector(28.8, -12, 0), Vector(0, 0, 1), 0.9),  # 5
    Part.Circle(Vector(6.7, -48, 0), Vector(0, 0, 1), 0.9),  # 6
    Part.Circle(Vector(17.9, -48, 0), Vector(0, 0, 1), 0.9),  # 7
    Part.Circle(Vector(14.3, -60, 0), Vector(0, 0, 1), 0.9),  # 8
    Part.Circle(Vector(7.8, -60, 0), Vector(0, 0, 1), 0.9),  # 9
], False)
sketch10.addConstraint([
    Sketcher.Constraint("Equal", 0, 1),
    Sketcher.Constraint("Equal", 1, 2),
    Sketcher.Constraint("Equal", 2, 3),
    Sketcher.Constraint("Equal", 3, 4),
    Sketcher.Constraint("Equal", 4, 5),
    Sketcher.Constraint("Equal", 5, 6),
    Sketcher.Constraint("Equal", 6, 7),
    Sketcher.Constraint("Equal", 7, 8),
    Sketcher.Constraint("Equal", 8, 9),
    Sketcher.Constraint("Horizontal", 0, 3, 1, 3),
    Sketcher.Constraint("Horizontal", 2, 3, 3, 3),
    Sketcher.Constraint("Horizontal", 4, 3, 5, 3),
    Sketcher.Constraint("Horizontal", 6, 3, 7, 3),
    Sketcher.Constraint("Horizontal", 8, 3, 9, 3),
    Sketcher.Constraint("Diameter", 0, 1.8),
    Sketcher.Constraint("DistanceY", 0, 3, -1, 1, 36.0),
    Sketcher.Constraint("DistanceY", 2, 3, -1, 1, 24.0),
    Sketcher.Constraint("DistanceY", 4, 3, -1, 1, 12.0),
    Sketcher.Constraint("DistanceY", 6, 3, -1, 1, 48.0),
    Sketcher.Constraint("DistanceY", 8, 3, -1, 1, 60.0),
    Sketcher.Constraint("DistanceX", -1, 1, 8, 3, 14.304902),
    Sketcher.Constraint("DistanceX", 4, 3, 5, 3, 25.212699),
    Sketcher.Constraint("DistanceX", 6, 3, 1, 3, 14.829502),
    Sketcher.Constraint("DistanceX", 6, 3, 7, 3, 11.212699),
    Sketcher.Constraint("DistanceX", -1, 1, 0, 3, 5.659141),
    Sketcher.Constraint("DistanceX", -1, 1, 2, 3, 25.15531),
    Sketcher.Constraint("DistanceX", -1, 1, 9, 3, 7.758869),
    Sketcher.Constraint("DistanceX", 3, 3, 1, 3, 16.92923),
    Sketcher.Constraint("DistanceX", 0, 3, 5, 3, 23.112971),
    Sketcher.Constraint("DistanceX", 4, 3, 6, 3, 3.149592),
])
pad10 = body2.newObject("PartDesign::Pad", "Pad009")
pad10.Profile = sketch10
pad10.Length = 4
pad10.Reversed = True

doc.recompute()
